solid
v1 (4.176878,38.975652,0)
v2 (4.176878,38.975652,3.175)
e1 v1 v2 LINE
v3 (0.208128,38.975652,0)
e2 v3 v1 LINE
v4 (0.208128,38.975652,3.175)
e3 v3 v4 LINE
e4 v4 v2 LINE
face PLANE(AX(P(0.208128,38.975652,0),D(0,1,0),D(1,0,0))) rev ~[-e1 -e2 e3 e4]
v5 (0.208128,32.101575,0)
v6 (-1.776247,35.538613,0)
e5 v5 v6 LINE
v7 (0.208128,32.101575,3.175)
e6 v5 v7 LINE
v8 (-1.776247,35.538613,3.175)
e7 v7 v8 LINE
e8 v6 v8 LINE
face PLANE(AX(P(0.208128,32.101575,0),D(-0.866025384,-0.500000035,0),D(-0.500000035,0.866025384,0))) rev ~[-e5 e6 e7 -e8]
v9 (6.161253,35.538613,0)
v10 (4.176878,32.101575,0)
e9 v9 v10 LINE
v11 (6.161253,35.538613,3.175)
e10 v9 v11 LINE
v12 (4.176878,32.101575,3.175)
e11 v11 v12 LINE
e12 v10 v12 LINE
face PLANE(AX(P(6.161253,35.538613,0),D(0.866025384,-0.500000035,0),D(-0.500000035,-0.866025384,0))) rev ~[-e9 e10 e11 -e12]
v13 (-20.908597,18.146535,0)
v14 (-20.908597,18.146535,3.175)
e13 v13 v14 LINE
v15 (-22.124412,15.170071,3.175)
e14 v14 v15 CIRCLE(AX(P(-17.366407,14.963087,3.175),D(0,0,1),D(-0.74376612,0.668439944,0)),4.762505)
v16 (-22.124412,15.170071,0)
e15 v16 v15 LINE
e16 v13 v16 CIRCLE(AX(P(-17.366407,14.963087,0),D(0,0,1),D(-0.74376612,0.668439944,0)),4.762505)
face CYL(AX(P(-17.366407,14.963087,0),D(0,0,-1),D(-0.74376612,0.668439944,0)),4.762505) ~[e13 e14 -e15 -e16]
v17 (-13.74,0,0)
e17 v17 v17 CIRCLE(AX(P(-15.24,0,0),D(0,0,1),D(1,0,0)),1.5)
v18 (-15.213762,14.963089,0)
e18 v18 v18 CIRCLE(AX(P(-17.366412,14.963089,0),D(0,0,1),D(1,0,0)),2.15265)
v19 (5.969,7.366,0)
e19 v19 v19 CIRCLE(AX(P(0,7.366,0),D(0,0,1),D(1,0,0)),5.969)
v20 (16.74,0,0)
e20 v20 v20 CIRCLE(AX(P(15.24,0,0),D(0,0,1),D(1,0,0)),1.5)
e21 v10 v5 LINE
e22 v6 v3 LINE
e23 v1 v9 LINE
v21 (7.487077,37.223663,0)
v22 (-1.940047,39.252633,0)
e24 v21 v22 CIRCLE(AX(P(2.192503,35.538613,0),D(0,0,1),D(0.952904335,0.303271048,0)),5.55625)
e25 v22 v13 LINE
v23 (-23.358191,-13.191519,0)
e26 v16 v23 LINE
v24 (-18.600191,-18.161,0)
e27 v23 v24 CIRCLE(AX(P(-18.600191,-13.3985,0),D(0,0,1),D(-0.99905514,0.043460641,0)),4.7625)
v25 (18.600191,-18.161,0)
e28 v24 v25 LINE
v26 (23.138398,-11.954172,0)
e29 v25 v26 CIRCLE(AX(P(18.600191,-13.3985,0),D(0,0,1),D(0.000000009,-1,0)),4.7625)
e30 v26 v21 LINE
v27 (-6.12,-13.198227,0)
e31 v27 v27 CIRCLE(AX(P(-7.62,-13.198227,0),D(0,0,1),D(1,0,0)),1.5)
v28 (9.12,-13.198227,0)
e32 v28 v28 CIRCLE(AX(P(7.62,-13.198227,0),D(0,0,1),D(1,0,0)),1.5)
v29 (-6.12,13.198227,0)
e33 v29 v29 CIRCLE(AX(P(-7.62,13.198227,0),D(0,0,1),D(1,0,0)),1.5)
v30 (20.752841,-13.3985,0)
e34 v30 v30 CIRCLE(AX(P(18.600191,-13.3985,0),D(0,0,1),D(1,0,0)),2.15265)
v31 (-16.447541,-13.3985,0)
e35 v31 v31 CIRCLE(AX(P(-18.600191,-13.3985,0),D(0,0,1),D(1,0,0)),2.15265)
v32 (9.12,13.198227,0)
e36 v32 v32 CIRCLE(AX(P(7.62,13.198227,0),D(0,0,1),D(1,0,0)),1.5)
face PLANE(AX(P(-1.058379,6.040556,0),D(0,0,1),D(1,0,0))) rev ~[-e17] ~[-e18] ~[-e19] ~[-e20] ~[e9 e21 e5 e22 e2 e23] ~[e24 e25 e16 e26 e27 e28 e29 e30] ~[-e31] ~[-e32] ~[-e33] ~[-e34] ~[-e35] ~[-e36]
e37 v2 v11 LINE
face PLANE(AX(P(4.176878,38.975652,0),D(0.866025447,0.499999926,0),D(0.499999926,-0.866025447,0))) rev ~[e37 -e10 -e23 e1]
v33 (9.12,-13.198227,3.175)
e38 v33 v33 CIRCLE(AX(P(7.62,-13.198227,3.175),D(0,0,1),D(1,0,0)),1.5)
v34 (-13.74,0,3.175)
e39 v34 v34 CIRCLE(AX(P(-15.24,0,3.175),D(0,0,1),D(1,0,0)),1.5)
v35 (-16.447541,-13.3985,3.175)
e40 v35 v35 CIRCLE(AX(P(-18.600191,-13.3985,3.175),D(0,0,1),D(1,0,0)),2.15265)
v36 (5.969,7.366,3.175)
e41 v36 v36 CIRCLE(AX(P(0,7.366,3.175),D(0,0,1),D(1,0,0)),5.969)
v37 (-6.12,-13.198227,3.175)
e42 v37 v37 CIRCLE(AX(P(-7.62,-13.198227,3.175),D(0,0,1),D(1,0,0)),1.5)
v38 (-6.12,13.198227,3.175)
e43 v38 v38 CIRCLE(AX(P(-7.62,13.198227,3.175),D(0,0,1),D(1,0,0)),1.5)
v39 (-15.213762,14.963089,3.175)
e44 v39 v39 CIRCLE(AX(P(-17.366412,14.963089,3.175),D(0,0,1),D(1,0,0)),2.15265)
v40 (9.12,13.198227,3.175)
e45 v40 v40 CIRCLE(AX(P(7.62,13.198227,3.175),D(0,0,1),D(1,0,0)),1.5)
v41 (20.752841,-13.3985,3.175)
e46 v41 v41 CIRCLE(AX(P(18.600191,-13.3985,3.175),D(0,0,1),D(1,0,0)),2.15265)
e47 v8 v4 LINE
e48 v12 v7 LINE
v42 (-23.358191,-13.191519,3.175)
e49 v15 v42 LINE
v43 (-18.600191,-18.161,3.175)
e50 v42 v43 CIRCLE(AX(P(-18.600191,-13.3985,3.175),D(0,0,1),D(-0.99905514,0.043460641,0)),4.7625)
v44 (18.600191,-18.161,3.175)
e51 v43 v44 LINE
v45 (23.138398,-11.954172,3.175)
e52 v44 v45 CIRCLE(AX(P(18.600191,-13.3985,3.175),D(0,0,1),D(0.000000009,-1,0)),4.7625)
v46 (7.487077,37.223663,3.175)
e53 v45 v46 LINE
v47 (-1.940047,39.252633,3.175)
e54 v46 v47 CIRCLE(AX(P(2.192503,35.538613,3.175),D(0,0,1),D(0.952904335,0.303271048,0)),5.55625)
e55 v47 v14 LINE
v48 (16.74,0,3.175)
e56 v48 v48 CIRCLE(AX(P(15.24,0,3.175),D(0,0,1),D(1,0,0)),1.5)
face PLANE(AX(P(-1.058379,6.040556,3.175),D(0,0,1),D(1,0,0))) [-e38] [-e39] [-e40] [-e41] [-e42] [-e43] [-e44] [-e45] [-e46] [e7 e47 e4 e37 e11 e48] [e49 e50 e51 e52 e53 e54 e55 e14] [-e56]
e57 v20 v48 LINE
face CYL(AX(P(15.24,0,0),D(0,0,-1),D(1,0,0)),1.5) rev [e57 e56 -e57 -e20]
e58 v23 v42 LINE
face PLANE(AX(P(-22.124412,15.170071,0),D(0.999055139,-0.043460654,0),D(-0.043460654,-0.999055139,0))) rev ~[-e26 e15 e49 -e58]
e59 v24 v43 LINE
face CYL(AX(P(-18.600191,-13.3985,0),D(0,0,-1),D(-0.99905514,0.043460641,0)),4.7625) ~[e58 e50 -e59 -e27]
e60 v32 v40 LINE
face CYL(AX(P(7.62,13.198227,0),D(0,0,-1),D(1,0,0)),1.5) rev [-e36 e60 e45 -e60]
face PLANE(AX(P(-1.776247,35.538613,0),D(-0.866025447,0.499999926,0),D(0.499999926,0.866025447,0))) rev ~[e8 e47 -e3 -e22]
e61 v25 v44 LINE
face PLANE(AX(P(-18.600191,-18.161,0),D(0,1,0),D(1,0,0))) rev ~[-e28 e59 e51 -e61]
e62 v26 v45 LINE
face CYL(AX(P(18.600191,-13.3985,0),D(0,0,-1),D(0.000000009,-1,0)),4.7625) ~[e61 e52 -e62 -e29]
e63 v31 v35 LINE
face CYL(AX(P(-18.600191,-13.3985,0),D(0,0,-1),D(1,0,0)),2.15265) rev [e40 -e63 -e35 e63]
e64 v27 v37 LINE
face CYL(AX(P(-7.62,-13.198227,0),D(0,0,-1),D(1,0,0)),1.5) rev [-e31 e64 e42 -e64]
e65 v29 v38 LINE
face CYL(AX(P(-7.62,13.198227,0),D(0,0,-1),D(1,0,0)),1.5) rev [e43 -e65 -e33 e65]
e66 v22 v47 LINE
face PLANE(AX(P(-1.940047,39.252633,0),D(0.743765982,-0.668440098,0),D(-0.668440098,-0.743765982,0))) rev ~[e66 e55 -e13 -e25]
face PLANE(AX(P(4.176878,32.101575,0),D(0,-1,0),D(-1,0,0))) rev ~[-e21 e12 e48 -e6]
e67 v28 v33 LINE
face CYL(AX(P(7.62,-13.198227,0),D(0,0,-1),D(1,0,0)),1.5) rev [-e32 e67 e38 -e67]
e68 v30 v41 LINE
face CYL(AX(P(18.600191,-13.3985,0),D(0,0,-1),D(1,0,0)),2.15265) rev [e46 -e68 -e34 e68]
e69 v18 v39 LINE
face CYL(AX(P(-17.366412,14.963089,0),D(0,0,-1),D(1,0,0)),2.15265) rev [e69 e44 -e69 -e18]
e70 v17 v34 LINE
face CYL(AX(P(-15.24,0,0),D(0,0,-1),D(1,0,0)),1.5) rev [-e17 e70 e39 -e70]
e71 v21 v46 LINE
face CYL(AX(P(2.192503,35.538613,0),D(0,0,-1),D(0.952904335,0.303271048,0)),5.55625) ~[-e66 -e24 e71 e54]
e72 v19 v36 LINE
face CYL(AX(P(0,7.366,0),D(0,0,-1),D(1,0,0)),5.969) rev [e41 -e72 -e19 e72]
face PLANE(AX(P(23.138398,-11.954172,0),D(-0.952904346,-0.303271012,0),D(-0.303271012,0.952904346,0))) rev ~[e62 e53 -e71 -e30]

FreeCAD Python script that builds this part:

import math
import FreeCAD as App
import Part
import Sketcher

V = App.Vector
Q = App.Units.Quantity

doc = App.newDocument("Part")
body = doc.addObject("PartDesign::Body", "Body")

# Sketch on XY plane
sketch1 = doc.addObject("Sketcher::SketchObject", "Sketch")
body.addObject(sketch1)
sketch1.AttachmentSupport = (doc.XY_Plane, [""])
sketch1.MapMode = "FlatFace"
sketch1.addGeometry([
    Part.ArcOfCircle(Part.Circle(V(18.6, -13.4, 0), V(0, 0, 1), 4.8), math.radians(-90), math.radians(18)),  # 0
    Part.LineSegment(V(23.1, -12, 0), V(7.5, 37.2, 0)),  # 1
    Part.ArcOfCircle(Part.Circle(V(2.2, 35.5, 0), V(0, 0, 1), 5.6), math.radians(18), math.radians(138)),  # 2
    Part.LineSegment(V(-1.9, 39.3, 0), V(-20.9, 18.1, 0)),  # 3
    Part.ArcOfCircle(Part.Circle(V(-17.4, 15, 0), V(0, 0, 1), 4.8), math.radians(138), math.radians(178)),  # 4
    Part.LineSegment(V(-22.1, 15.2, 0), V(-23.4, -13.2, 0)),  # 5
    Part.ArcOfCircle(Part.Circle(V(-18.6, -13.4, 0), V(0, 0, 1), 4.8), math.radians(178), math.radians(270)),  # 6
    Part.LineSegment(V(-18.6, -18.2, 0), V(18.6, -18.2, 0)),  # 7
    Part.Circle(V(-18.6, -13.4, 0), V(0, 0, 1), 2.2),  # 8
    Part.Circle(V(-7.6, -13.2, 0), V(0, 0, 1), 1.5),  # 9
    Part.Circle(V(-15.2, 0, 0), V(0, 0, 1), 1.5),  # 10
    Part.Circle(V(0, 7.4, 0), V(0, 0, 1), 6),  # 11
    Part.Circle(V(7.6, -13.2, 0), V(0, 0, 1), 1.5),  # 12
    Part.Circle(V(18.6, -13.4, 0), V(0, 0, 1), 2.2),  # 13
    Part.Circle(V(15.2, 0, 0), V(0, 0, 1), 1.5),  # 14
    Part.Circle(V(-17.4, 15, 0), V(0, 0, 1), 2.2),  # 15
    Part.Circle(V(-7.6, 13.2, 0), V(0, 0, 1), 1.5),  # 16
    Part.Circle(V(7.6, 13.2, 0), V(0, 0, 1), 1.5),  # 17
    Part.LineSegment(V(4.2, 39, 0), V(6.2, 35.5, 0)),  # 18
    Part.LineSegment(V(6.2, 35.5, 0), V(4.2, 32.1, 0)),  # 19
    Part.LineSegment(V(4.2, 32.1, 0), V(0.2, 32.1, 0)),  # 20
    Part.LineSegment(V(0.2, 32.1, 0), V(-1.8, 35.5, 0)),  # 21
    Part.LineSegment(V(-1.8, 35.5, 0), V(0.2, 39, 0)),  # 22
    Part.LineSegment(V(0.2, 39, 0), V(4.2, 39, 0)),  # 23
], False)
sketch1.addConstraint([
    Sketcher.Constraint("Tangent", 0, 2, 1, 1),
    Sketcher.Constraint("Tangent", 1, 2, 2, 1),
    Sketcher.Constraint("Tangent", 2, 2, 3, 1),
    Sketcher.Constraint("Tangent", 3, 2, 4, 1),
    Sketcher.Constraint("Tangent", 4, 2, 5, 1),
    Sketcher.Constraint("Tangent", 5, 2, 6, 1),
    Sketcher.Constraint("Tangent", 6, 2, 7, 1),
    Sketcher.Constraint("Tangent", 7, 2, 0, 1),
    Sketcher.Constraint("Coincident", 18, 2, 19, 1),
    Sketcher.Constraint("Coincident", 19, 2, 20, 1),
    Sketcher.Constraint("Coincident", 20, 2, 21, 1),
    Sketcher.Constraint("Coincident", 21, 2, 22, 1),
    Sketcher.Constraint("Coincident", 22, 2, 23, 1),
    Sketcher.Constraint("Coincident", 23, 2, 18, 1),
    Sketcher.Constraint("Horizontal", 7),
    Sketcher.Constraint("Horizontal", 20),
    Sketcher.Constraint("Horizontal", 23),
    Sketcher.Constraint("Coincident", 8, 3, 6, 3),
    Sketcher.Constraint("Coincident", 13, 3, 0, 3),
    Sketcher.Constraint("Coincident", 15, 3, 4, 3),
    Sketcher.Constraint("Equal", 0, 6),
    Sketcher.Constraint("Equal", 9, 10),
    Sketcher.Constraint("Equal", 10, 12),
    Sketcher.Constraint("Equal", 8, 13),
    Sketcher.Constraint("Equal", 12, 14),
    Sketcher.Constraint("Equal", 13, 15),
    Sketcher.Constraint("Equal", 14, 16),
    Sketcher.Constraint("Equal", 16, 17),
    Sketcher.Constraint("Symmetric", 10, 3, 14, 3, -1, 1),
    Sketcher.Constraint("Symmetric", 12, 3, 16, 3, -1, 1),
    Sketcher.Constraint("Symmetric", 9, 3, 17, 3, -1, 1),
    Sketcher.Constraint("Symmetric", 9, 3, 12, 3, -2),
    Sketcher.Constraint("PointOnObject", 10, 3, -1),
    Sketcher.Constraint("PointOnObject", 11, 3, -2),
    Sketcher.Constraint("Parallel", 18, 21),
    Sketcher.Constraint("Parallel", 19, 22),
    Sketcher.Constraint("Horizontal", 2, 3, 18, 2),
    Sketcher.Constraint("Horizontal", 18, 2, 21, 2),
    Sketcher.Constraint("Vertical", 20, 2, 22, 2),
    Sketcher.Constraint("Vertical", 19, 2, 23, 2),
    Sketcher.Constraint("Diameter", 11, Q("0.47 in")),
    Sketcher.Constraint("Angle", 18, Q("-60.000005 deg")),
    Sketcher.Constraint("Radius", 0, Q("0.1875 in")),
    Sketcher.Constraint("Radius", 2, Q("0.21875 in")),
    Sketcher.Constraint("Diameter", 8, Q("0.1695 in")),
    Sketcher.Constraint("DistanceX", 9, 3, -1, 1, Q("0.3 in")),
    Sketcher.Constraint("DistanceX", 10, 3, -1, 1, Q("0.6 in")),
    Sketcher.Constraint("Radius", 4, Q("0.1875002 in")),
    Sketcher.Constraint("Diameter", 9, 3.0),
    Sketcher.Constraint("DistanceX", 20, 2, 20, 1, Q("0.15625 in")),
    Sketcher.Constraint("DistanceY", -1, 1, 11, 3, Q("0.29 in")),
    Sketcher.Constraint("Distance", 18, Q("0.15625 in")),
    Sketcher.Constraint("DistanceY", 6, 2, -1, 1, Q("0.715 in")),
    Sketcher.Constraint("DistanceX", 2, 3, 18, 2, Q("0.15625 in")),
    Sketcher.Constraint("DistanceX", 7, 1, 7, 2, 37.200382),
    Sketcher.Constraint("DistanceX", -1, 1, 0, 2, 23.138398),
    Sketcher.Constraint("DistanceX", 4, 3, 0, 3, 35.966598),
    Sketcher.Constraint("DistanceY", 0, 2, 17, 3, 25.152399),
    Sketcher.Constraint("DistanceX", 2, 2, 18, 2, 8.1013),
    Sketcher.Constraint("DistanceX", 19, 2, 1, 2, 3.310199),
    Sketcher.Constraint("DistanceY", -1, 1, 15, 3, 14.963089),
])
pad1 = doc.addObject("PartDesign::Pad", "Pad")
body.addObject(pad1)
pad1.Profile = sketch1
pad1.Length = Q("0.125 in")

doc.recompute()
